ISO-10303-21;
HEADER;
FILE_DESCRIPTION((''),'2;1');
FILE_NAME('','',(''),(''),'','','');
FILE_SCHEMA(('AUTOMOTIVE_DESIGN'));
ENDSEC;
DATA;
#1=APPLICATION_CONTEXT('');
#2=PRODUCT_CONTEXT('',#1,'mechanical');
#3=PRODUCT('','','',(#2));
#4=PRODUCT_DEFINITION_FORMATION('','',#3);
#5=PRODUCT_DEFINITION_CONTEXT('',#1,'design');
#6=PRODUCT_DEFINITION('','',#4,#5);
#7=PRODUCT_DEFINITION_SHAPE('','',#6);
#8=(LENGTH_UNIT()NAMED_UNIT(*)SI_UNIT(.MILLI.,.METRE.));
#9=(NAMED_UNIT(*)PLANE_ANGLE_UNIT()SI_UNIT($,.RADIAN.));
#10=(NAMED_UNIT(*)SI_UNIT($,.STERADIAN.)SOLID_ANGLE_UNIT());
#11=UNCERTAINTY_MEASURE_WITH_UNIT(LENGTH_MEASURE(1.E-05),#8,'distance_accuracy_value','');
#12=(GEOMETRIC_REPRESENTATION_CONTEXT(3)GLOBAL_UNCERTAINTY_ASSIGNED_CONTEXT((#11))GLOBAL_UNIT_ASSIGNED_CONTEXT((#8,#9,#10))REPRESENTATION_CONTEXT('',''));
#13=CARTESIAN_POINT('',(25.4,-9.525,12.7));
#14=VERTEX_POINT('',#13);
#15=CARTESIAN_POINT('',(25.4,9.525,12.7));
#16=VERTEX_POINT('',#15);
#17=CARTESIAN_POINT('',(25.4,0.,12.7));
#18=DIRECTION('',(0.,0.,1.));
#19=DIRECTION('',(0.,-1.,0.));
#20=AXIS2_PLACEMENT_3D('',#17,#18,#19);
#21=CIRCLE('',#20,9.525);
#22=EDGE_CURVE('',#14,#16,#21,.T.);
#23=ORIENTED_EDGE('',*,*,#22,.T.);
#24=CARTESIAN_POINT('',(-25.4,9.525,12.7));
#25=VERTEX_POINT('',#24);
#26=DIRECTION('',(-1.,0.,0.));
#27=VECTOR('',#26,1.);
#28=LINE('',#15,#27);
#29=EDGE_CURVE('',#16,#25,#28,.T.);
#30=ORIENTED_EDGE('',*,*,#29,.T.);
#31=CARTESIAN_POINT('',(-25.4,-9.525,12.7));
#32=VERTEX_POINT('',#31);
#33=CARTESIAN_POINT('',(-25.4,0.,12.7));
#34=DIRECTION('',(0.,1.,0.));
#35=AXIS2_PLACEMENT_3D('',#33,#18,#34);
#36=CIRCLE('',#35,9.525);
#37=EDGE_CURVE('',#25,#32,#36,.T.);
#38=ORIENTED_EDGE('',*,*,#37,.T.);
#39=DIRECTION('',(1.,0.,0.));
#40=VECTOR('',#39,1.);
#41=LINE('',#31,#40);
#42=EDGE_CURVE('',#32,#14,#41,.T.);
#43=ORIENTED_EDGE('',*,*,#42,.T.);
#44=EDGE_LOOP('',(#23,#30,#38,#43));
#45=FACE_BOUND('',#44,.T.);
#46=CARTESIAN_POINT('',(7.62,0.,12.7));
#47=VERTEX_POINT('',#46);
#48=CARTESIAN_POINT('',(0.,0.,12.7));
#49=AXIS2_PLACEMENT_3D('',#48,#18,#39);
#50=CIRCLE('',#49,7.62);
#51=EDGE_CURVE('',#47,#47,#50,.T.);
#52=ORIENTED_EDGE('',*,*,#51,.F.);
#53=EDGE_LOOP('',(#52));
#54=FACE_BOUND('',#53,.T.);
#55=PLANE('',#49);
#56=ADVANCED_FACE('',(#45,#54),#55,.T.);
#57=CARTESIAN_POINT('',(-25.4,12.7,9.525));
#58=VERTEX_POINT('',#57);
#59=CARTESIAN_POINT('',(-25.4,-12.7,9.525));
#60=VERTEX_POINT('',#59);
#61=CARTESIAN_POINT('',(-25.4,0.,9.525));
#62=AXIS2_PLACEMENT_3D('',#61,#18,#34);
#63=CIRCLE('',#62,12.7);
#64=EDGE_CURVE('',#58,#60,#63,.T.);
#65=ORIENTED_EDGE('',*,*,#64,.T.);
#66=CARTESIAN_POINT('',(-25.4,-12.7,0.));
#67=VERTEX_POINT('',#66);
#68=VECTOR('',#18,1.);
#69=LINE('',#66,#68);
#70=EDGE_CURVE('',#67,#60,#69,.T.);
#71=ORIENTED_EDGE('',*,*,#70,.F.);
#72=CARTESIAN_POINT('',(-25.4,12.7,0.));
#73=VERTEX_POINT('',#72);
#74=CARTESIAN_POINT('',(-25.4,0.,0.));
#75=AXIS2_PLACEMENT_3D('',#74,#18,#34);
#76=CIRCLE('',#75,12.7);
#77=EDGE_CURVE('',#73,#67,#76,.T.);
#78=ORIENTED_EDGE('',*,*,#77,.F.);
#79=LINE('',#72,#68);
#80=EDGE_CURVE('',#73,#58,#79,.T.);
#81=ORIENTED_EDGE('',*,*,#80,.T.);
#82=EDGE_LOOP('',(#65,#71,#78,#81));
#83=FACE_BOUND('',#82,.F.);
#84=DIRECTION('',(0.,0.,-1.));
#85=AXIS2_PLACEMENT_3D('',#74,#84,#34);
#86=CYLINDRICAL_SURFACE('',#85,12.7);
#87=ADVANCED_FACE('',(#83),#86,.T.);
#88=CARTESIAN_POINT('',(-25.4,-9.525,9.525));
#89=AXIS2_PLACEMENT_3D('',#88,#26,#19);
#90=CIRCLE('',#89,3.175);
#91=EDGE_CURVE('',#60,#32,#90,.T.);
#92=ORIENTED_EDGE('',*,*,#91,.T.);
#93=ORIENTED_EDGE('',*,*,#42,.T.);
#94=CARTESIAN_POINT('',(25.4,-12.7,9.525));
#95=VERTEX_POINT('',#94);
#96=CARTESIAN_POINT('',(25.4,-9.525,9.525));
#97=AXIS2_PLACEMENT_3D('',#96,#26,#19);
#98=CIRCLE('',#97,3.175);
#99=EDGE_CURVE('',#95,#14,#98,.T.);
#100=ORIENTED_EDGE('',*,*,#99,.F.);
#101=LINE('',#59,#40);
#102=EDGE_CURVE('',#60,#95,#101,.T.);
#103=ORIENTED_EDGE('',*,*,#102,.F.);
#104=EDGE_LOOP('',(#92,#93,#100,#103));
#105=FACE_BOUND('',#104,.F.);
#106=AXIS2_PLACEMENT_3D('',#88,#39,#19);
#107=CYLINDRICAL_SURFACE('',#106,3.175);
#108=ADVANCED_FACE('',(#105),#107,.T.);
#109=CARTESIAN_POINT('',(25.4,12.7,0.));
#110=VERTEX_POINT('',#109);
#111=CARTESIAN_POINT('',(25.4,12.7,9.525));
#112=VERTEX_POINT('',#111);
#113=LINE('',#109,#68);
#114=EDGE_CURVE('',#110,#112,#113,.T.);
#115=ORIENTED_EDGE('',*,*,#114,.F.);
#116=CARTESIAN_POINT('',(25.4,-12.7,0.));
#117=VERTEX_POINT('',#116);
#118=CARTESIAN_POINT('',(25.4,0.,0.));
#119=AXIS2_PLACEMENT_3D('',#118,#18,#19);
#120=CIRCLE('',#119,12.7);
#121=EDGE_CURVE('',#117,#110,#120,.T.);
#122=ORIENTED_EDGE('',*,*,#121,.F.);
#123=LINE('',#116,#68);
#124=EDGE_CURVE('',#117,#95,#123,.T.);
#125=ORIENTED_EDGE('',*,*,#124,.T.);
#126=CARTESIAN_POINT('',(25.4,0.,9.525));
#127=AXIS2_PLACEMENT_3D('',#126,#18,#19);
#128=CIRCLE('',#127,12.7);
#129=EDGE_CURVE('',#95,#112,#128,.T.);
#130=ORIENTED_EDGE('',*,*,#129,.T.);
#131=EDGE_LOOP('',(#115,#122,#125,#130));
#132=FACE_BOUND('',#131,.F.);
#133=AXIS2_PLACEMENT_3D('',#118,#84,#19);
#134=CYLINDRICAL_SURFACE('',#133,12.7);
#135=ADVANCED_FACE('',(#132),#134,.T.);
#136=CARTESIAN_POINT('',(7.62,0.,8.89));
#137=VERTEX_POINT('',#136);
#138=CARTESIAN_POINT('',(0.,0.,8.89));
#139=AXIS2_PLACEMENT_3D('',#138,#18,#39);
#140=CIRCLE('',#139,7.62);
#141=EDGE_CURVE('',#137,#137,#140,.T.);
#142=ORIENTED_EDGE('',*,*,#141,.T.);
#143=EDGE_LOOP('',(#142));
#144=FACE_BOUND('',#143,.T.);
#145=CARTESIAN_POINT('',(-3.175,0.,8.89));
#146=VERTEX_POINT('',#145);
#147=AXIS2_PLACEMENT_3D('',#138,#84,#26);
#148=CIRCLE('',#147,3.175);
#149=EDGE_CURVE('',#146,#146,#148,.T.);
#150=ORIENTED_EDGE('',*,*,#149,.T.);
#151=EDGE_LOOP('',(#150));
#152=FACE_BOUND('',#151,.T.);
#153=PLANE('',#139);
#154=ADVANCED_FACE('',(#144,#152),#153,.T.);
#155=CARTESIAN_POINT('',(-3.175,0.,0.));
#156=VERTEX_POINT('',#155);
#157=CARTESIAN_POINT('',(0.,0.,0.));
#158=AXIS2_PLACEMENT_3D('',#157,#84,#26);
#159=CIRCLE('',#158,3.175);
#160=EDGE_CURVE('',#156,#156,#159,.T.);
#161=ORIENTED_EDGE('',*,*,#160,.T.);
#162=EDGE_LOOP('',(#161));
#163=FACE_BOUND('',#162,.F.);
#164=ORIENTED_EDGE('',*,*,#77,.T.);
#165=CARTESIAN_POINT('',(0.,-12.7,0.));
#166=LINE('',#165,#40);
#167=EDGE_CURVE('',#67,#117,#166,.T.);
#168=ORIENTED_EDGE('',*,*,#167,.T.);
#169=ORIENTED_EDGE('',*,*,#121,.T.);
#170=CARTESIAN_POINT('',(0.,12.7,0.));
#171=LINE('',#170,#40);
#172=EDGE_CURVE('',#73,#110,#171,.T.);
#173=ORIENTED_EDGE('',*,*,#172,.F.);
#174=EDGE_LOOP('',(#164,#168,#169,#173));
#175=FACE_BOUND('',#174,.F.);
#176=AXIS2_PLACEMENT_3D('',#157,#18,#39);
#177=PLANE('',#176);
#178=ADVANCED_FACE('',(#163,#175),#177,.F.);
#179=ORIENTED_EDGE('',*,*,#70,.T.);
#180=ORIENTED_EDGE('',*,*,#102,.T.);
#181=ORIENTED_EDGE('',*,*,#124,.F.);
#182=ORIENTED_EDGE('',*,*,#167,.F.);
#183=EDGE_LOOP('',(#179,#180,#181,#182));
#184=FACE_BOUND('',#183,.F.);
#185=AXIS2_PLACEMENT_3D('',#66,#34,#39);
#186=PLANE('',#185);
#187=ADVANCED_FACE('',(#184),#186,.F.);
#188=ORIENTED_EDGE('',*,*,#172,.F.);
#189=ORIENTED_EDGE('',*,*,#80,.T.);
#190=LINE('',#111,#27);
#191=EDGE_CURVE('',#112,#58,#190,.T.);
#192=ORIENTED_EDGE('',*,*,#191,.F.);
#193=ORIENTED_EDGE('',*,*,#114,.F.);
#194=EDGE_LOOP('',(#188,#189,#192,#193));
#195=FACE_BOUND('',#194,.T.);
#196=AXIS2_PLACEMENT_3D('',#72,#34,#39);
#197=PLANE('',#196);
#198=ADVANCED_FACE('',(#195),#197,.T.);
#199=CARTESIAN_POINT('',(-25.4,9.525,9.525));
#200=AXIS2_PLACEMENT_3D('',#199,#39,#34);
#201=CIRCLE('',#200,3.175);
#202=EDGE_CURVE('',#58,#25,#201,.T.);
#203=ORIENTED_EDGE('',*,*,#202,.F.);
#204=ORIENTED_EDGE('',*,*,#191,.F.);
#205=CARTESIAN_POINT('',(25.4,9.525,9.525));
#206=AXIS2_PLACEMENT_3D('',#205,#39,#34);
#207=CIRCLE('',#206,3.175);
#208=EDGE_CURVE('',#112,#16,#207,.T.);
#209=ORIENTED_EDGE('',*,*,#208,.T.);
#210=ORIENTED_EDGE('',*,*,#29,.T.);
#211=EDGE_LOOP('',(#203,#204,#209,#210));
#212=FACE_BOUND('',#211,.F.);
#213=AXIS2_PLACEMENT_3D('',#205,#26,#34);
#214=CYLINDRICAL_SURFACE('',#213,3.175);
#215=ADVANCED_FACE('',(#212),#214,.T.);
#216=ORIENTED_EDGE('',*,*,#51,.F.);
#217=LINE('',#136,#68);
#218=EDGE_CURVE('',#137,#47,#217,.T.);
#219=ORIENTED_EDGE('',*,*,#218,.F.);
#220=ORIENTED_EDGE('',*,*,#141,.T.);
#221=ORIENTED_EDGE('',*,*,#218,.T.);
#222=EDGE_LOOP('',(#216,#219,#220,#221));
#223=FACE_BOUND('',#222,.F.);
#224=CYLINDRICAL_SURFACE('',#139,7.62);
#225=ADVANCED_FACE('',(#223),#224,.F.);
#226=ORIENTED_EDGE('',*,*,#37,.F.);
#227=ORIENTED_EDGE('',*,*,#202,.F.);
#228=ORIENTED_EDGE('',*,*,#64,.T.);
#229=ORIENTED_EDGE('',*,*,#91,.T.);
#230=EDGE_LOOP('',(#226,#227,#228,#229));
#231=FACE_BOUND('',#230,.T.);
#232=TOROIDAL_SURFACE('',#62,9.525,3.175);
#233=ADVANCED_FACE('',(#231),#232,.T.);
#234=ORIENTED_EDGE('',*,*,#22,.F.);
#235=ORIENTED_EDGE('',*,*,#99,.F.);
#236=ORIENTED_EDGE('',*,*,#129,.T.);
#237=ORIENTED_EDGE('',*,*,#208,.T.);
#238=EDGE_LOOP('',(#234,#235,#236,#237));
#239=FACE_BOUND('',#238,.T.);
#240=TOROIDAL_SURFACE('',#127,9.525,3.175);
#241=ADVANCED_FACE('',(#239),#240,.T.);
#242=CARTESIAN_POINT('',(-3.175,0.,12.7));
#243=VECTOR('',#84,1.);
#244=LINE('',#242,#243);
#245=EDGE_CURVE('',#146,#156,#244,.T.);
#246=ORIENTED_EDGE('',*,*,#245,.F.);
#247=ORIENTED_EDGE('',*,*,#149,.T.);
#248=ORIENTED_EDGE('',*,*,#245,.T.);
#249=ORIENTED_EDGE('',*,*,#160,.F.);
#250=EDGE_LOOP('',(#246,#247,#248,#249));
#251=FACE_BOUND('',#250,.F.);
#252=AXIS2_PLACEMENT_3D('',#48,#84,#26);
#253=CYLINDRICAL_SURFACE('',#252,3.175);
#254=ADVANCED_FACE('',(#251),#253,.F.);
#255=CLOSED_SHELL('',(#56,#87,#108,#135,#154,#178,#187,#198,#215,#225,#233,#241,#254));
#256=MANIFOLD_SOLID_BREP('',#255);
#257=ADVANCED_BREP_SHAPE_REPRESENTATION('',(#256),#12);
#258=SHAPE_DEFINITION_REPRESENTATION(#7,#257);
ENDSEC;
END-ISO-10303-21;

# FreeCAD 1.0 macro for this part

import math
import FreeCAD as App
import Part
import Sketcher

V = App.Vector
Q = App.Units.Quantity


def edges_at(feature, points):
    """Names of the edges that pass closest to the given points."""
    edges = feature.Shape.Edges
    near = lambda p: min(range(len(edges)), key=lambda i: edges[i].distToShape(Part.Vertex(*p))[0])
    return sorted({f"Edge{near(p) + 1}" for p in points})

doc = App.newDocument("Part")
body = doc.addObject("PartDesign::Body", "Body")

sketch1 = body.newObject("Sketcher::SketchObject", "Sketch")
sketch1.AttachmentSupport = (doc.getObject("XY_Plane"), [""])
sketch1.MapMode = "FlatFace"
sketch1.addGeometry(Part.LineSegment(V(-25, -13, 0), V(25, -13, 0)), False)
sketch1.addGeometry(Part.ArcOfCircle(Part.Circle(V(25, 0, 0), V(0, 0, 1), 13), math.radians(-90), math.radians(90)), False)
sketch1.addGeometry(Part.LineSegment(V(25, 13, 0), V(-25, 13, 0)), False)
sketch1.addGeometry(Part.ArcOfCircle(Part.Circle(V(-25, 0, 0), V(0, 0, 1), 13), math.radians(90), math.radians(270)), False)
sketch1.addConstraint(Sketcher.Constraint("Tangent", 0, 2, 1, 1))
sketch1.addConstraint(Sketcher.Constraint("Tangent", 1, 2, 2, 1))
sketch1.addConstraint(Sketcher.Constraint("Tangent", 2, 2, 3, 1))
sketch1.addConstraint(Sketcher.Constraint("Tangent", 3, 2, 0, 1))
sketch1.addConstraint(Sketcher.Constraint("Horizontal", 0))
sketch1.addConstraint(Sketcher.Constraint("Horizontal", 2))
sketch1.addConstraint(Sketcher.Constraint("Symmetric", 1, 3, 3, 3, -1, 1))
sketch1.addConstraint(Sketcher.Constraint("Radius", 1, Q("0.5 in")))
sketch1.addConstraint(Sketcher.Constraint("DistanceX", 0, 1, 0, 2, Q("2 in")))
pad1 = body.newObject("PartDesign::Pad", "Pad")
pad1.Profile = sketch1
pad1.Length = Q("0.5 in")

sketch2 = body.newObject("Sketcher::SketchObject", "Sketch001")
sketch2.AttachmentSupport = (doc.getObject("XY_Plane"), [""])
sketch2.MapMode = "FlatFace"
sketch2.AttachmentOffset = App.Placement(V(0, 0, 0.5 * 25.4), App.Rotation())
sketch2.addGeometry(Part.Circle(V(0, 0, 0), V(0, 0, 1), 3.2), False)
sketch2.addConstraint(Sketcher.Constraint("Coincident", 0, 3, -1, 1))
sketch2.addConstraint(Sketcher.Constraint("Diameter", 0, Q("0.25 in")))
doc.recompute()
hole = body.newObject("PartDesign::Hole", "Hole")
hole.Profile = sketch2
hole.ThreadType = "None"
hole.Diameter = Q("0.25 in")
hole.DepthType = "ThroughAll"
hole.HoleCutType = "Counterbore"
hole.HoleCutDiameter = Q("0.6 in")
hole.HoleCutDepth = Q("0.15 in")
doc.recompute()

fillet = body.newObject("PartDesign::Fillet", "Fillet")
fillet.Base = (hole, edges_at(hole, [(-38.1, 0, 12.7)]))
fillet.Radius = Q("0.125 in")

doc.recompute()
